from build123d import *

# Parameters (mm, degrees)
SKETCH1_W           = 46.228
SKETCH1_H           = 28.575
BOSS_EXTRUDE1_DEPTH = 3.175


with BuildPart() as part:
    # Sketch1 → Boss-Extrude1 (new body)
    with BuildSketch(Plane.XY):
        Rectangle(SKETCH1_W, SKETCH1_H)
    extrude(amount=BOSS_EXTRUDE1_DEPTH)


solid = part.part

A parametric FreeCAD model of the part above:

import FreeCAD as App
import Part
import Sketcher
Q = App.Units.Quantity

doc = App.newDocument("Part")
body = doc.addObject("PartDesign::Body", "Body")

sketch1 = body.newObject("Sketcher::SketchObject", "Sketch")
sketch1.AttachmentSupport = (doc.getObject("XY_Plane"), [""])
sketch1.MapMode = "FlatFace"
sketch1.addGeometry([
    Part.LineSegment(App.Vector(-23, 14, 0), App.Vector(-23, -14, 0)),
    Part.LineSegment(App.Vector(-23, -14, 0), App.Vector(23, -14, 0)),
    Part.LineSegment(App.Vector(23, -14, 0), App.Vector(23, 14, 0)),
    Part.LineSegment(App.Vector(23, 14, 0), App.Vector(-23, 14, 0)),
], False)
sketch1.addConstraint([
    Sketcher.Constraint("Coincident", 0, 2, 1, 1),
    Sketcher.Constraint("Coincident", 1, 2, 2, 1),
    Sketcher.Constraint("Coincident", 2, 2, 3, 1),
    Sketcher.Constraint("Coincident", 3, 2, 0, 1),
    Sketcher.Constraint("Vertical", 0),
    Sketcher.Constraint("Horizontal", 1),
    Sketcher.Constraint("Vertical", 2),
    Sketcher.Constraint("Horizontal", 3),
    Sketcher.Constraint("Symmetric", 0, 2, 2, 2, -1, 1),
    Sketcher.Constraint("DistanceX", 1, 1, 1, 2, Q("1.82 in")),
    Sketcher.Constraint("DistanceY", 0, 2, 0, 1, Q("1.125 in")),
])
pad1 = body.newObject("PartDesign::Pad", "Pad")
pad1.Profile = sketch1
pad1.Length = Q("0.125 in")

doc.recompute()
